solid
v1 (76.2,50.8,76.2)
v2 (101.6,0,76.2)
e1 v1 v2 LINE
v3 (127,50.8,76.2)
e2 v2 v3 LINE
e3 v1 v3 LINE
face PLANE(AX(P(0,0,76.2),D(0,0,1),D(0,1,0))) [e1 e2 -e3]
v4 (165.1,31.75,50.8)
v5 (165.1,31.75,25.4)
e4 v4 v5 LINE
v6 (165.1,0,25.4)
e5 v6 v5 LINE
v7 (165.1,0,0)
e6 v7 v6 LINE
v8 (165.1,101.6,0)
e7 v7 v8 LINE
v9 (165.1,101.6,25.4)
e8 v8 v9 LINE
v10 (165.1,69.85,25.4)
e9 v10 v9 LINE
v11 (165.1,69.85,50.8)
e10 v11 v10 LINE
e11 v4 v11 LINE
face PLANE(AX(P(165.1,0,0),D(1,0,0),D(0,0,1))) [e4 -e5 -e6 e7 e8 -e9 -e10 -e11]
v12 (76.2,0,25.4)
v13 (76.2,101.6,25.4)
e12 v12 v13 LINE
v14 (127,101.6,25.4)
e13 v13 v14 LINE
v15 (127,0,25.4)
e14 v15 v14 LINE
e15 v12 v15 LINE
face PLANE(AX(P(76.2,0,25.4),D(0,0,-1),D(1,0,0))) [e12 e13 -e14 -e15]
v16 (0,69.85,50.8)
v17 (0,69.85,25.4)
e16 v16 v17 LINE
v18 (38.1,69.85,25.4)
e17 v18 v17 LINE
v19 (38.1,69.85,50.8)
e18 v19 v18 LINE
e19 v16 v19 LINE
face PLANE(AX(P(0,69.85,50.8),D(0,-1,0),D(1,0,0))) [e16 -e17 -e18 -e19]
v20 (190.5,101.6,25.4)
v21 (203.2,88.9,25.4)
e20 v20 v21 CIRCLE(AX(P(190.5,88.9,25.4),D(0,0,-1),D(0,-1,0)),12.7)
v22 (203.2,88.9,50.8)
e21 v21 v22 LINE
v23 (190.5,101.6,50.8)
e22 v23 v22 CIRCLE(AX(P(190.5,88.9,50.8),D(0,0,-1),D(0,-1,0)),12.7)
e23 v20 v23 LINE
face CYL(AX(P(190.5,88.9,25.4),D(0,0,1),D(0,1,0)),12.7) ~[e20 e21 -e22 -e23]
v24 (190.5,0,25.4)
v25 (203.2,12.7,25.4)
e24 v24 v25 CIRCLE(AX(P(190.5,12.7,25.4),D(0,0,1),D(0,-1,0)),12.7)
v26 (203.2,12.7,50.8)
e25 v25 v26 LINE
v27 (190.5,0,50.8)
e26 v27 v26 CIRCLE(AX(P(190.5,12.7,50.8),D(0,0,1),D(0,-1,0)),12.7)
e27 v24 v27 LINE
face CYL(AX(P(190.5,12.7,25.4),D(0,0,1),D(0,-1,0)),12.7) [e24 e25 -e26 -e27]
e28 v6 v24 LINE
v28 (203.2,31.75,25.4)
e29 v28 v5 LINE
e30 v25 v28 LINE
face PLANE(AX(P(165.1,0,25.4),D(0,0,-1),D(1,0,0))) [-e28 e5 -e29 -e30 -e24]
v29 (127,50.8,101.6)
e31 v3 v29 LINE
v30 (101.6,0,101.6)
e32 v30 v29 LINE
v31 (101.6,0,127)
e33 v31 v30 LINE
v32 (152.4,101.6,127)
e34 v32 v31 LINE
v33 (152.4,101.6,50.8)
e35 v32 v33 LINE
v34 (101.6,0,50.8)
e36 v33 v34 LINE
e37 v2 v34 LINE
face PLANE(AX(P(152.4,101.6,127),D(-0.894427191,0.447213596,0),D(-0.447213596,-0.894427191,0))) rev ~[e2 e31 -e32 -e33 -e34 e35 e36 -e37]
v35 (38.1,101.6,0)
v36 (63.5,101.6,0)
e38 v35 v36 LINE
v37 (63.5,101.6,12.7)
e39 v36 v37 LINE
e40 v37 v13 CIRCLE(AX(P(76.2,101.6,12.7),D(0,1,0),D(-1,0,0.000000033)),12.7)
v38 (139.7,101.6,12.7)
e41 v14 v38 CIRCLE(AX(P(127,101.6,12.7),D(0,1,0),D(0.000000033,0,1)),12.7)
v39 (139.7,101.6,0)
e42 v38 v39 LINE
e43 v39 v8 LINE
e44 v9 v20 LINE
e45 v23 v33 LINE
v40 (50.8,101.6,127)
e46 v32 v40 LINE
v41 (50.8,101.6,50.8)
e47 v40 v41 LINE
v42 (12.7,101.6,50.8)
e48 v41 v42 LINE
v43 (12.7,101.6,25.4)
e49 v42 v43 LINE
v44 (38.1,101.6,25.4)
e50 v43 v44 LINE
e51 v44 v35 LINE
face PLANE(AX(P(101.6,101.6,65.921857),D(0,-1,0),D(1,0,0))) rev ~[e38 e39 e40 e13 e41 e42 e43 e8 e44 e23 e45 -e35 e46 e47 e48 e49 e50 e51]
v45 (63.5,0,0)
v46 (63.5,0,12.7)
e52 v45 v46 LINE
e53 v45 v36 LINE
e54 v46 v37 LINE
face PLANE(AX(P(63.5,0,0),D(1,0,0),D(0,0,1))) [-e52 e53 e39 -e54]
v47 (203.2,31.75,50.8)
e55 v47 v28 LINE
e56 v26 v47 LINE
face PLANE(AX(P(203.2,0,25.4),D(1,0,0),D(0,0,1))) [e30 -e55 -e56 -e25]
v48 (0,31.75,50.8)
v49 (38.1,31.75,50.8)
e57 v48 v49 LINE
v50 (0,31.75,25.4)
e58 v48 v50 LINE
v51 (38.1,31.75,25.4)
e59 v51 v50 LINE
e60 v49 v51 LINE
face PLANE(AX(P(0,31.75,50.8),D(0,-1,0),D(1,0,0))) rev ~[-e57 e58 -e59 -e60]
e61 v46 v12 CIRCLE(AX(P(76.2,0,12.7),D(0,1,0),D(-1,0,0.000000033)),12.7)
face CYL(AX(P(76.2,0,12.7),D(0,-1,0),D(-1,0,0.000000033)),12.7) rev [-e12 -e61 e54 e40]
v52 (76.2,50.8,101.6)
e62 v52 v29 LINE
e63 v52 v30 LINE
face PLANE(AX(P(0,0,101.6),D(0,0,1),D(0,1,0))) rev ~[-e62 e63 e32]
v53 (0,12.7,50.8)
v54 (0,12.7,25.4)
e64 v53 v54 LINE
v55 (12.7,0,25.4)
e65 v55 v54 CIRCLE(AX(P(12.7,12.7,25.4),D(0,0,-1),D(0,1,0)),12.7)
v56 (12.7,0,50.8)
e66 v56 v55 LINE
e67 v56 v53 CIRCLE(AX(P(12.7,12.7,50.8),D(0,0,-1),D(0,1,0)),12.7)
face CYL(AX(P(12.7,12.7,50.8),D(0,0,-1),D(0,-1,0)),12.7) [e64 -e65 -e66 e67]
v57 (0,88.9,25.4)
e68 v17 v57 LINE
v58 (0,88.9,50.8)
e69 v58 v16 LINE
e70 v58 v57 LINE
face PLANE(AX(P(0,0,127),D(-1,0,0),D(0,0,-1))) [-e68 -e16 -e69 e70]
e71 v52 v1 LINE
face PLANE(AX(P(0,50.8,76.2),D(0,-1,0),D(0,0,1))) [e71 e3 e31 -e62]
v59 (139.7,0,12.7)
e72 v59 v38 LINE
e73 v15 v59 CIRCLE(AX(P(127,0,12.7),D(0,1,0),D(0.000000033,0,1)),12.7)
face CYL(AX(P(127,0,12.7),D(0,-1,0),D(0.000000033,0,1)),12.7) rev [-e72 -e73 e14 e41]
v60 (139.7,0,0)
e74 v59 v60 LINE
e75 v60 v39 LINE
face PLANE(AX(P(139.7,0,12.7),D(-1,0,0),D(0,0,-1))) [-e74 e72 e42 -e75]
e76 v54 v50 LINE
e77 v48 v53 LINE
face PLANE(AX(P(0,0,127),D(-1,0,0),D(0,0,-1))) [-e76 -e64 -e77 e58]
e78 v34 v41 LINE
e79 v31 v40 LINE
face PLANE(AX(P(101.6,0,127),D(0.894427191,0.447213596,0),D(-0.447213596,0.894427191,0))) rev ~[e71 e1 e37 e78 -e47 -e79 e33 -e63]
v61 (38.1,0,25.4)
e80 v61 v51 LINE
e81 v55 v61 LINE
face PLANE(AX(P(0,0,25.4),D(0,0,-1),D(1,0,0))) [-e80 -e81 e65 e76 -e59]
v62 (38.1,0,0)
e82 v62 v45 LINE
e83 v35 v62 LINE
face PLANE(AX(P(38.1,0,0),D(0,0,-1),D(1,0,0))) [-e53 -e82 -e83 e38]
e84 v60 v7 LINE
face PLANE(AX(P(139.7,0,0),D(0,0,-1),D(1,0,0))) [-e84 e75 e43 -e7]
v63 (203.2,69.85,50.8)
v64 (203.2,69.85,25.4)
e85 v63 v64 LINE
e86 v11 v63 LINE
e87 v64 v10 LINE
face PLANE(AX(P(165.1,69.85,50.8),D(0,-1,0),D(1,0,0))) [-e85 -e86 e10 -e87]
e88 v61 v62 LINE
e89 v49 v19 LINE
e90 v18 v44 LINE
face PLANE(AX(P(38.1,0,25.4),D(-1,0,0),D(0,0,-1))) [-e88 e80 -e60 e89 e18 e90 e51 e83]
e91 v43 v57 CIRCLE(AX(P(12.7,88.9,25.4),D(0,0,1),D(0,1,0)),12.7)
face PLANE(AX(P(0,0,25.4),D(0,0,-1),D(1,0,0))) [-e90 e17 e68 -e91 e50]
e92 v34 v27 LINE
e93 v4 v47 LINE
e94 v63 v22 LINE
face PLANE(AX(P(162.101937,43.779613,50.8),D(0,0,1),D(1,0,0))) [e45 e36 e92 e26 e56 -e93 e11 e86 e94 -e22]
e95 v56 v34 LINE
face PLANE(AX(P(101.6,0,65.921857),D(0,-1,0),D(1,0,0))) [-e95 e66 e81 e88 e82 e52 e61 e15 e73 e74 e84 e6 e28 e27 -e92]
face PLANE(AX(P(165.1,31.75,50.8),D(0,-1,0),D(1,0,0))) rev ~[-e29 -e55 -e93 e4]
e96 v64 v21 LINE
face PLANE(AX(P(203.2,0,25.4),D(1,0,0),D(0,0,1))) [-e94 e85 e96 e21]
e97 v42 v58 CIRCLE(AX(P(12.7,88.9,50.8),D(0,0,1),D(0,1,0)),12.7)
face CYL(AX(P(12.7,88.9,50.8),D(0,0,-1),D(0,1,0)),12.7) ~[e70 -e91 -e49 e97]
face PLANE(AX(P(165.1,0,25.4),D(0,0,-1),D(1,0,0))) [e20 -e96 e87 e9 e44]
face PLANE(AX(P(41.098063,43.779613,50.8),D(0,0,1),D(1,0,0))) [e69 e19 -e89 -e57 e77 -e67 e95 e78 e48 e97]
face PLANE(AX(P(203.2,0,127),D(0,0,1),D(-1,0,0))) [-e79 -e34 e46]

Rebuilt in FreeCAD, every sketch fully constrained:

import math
import FreeCAD as App
import Part
import Sketcher
from FreeCAD import Vector
Q = App.Units.Quantity


def edges_at(feature, points):
    """Names of the edges that pass closest to the given points."""
    edges = feature.Shape.Edges
    near = lambda p: min(range(len(edges)), key=lambda i: edges[i].distToShape(Part.Vertex(*p))[0])
    return sorted({f"Edge{near(p) + 1}" for p in points})

doc = App.newDocument("Part")
body = doc.addObject("PartDesign::Body", "Body")

# Sketch on XZ plane
sketch1 = body.newObject("Sketcher::SketchObject", "Sketch")
sketch1.AttachmentSupport = (doc.getObject("XZ_Plane"), [""])
sketch1.MapMode = "FlatFace"
sketch1.addGeometry([
    Part.LineSegment(Vector(38, 25, 0), Vector(38, 0, 0)),  # 0
    Part.LineSegment(Vector(38, 0, 0), Vector(64, 0, 0)),  # 1
    Part.LineSegment(Vector(64, 0, 0), Vector(64, 13, 0)),  # 2
    Part.ArcOfCircle(Part.Circle(Vector(76, 13, 0), Vector(0, 0, 1), 13), math.radians(90), math.radians(180)),  # 3
    Part.LineSegment(Vector(76, 25, 0), Vector(127, 25, 0)),  # 4
    Part.ArcOfCircle(Part.Circle(Vector(127, 13, 0), Vector(0, 0, 1), 13), math.radians(0), math.radians(90)),  # 5
    Part.LineSegment(Vector(140, 13, 0), Vector(140, 0, 0)),  # 6
    Part.LineSegment(Vector(140, 0, 0), Vector(165, 0, 0)),  # 7
    Part.LineSegment(Vector(165, 0, 0), Vector(165, 25, 0)),  # 8
    Part.LineSegment(Vector(165, 25, 0), Vector(203, 25, 0)),  # 9
    Part.LineSegment(Vector(203, 25, 0), Vector(203, 127, 0)),  # 10
    Part.LineSegment(Vector(203, 127, 0), Vector(0, 127, 0)),  # 11
    Part.LineSegment(Vector(0, 127, 0), Vector(0, 25, 0)),  # 12
    Part.LineSegment(Vector(0, 25, 0), Vector(38, 25, 0)),  # 13
], False)
sketch1.addConstraint([
    Sketcher.Constraint("Coincident", 0, 2, 1, 1),
    Sketcher.Constraint("Coincident", 1, 2, 2, 1),
    Sketcher.Constraint("Tangent", 2, 2, 3, 2),
    Sketcher.Constraint("Tangent", 3, 1, 4, 1),
    Sketcher.Constraint("Tangent", 4, 2, 5, 2),
    Sketcher.Constraint("Tangent", 5, 1, 6, 1),
    Sketcher.Constraint("Coincident", 6, 2, 7, 1),
    Sketcher.Constraint("Coincident", 7, 2, 8, 1),
    Sketcher.Constraint("Coincident", 8, 2, 9, 1),
    Sketcher.Constraint("Coincident", 9, 2, 10, 1),
    Sketcher.Constraint("Coincident", 10, 2, 11, 1),
    Sketcher.Constraint("Coincident", 11, 2, 12, 1),
    Sketcher.Constraint("Coincident", 12, 2, 13, 1),
    Sketcher.Constraint("Coincident", 13, 2, 0, 1),
    Sketcher.Constraint("Vertical", 0),
    Sketcher.Constraint("Horizontal", 1),
    Sketcher.Constraint("Vertical", 2),
    Sketcher.Constraint("Horizontal", 4),
    Sketcher.Constraint("Vertical", 6),
    Sketcher.Constraint("Horizontal", 7),
    Sketcher.Constraint("Vertical", 8),
    Sketcher.Constraint("Horizontal", 9),
    Sketcher.Constraint("Vertical", 10),
    Sketcher.Constraint("Horizontal", 11),
    Sketcher.Constraint("Vertical", 12),
    Sketcher.Constraint("Horizontal", 13),
    Sketcher.Constraint("Equal", 3, 5),
    Sketcher.Constraint("PointOnObject", 0, 2, -1),
    Sketcher.Constraint("PointOnObject", 6, 2, -1),
    Sketcher.Constraint("PointOnObject", 11, 2, -2),
    Sketcher.Constraint("Horizontal", 4, 2, 8, 2),
    Sketcher.Constraint("Horizontal", 9, 2, 12, 2),
    Sketcher.Constraint("Equal", 1, 7),
    Sketcher.Constraint("Equal", 9, 13),
    Sketcher.Constraint("Equal", 7, 0),
    Sketcher.Constraint("Radius", 3, Q("0.5 in")),
    Sketcher.Constraint("DistanceX", 1, 1, 1, 2, Q("1 in")),
    Sketcher.Constraint("DistanceX", 4, 1, 4, 2, Q("2 in")),
    Sketcher.Constraint("DistanceX", 11, 2, 11, 1, Q("8 in")),
    Sketcher.Constraint("DistanceY", 10, 1, 10, 2, Q("4 in")),
])
pad1 = body.newObject("PartDesign::Pad", "Pad")
pad1.Profile = sketch1
pad1.Length = Q("4 in")
pad1.Reversed = True

# Sketch on XY plane
sketch2 = body.newObject("Sketcher::SketchObject", "Sketch001")
sketch2.AttachmentSupport = (doc.getObject("XY_Plane"), [""])
sketch2.MapMode = "FlatFace"
sketch2.AttachmentOffset = App.Placement(Vector(0, 0, 5 * 25.4), App.Rotation())
sketch2.addGeometry([
    Part.LineSegment(Vector(152, 102, 0), Vector(102, 0, 0)),  # 0
    Part.LineSegment(Vector(102, 0, 0), Vector(203, 0, 0)),  # 1
    Part.LineSegment(Vector(203, 0, 0), Vector(203, 102, 0)),  # 2
    Part.LineSegment(Vector(203, 102, 0), Vector(152, 102, 0)),  # 3
    Part.LineSegment(Vector(0, 0, 0), Vector(102, 0, 0)),  # 4
    Part.LineSegment(Vector(102, 0, 0), Vector(51, 102, 0)),  # 5
    Part.LineSegment(Vector(51, 102, 0), Vector(0, 102, 0)),  # 6
    Part.LineSegment(Vector(0, 102, 0), Vector(0, 0, 0)),  # 7
], False)
sketch2.addConstraint([
    Sketcher.Constraint("Coincident", 0, 2, 1, 1),
    Sketcher.Constraint("Coincident", 1, 2, 2, 1),
    Sketcher.Constraint("Coincident", 2, 2, 3, 1),
    Sketcher.Constraint("Coincident", 3, 2, 0, 1),
    Sketcher.Constraint("Coincident", 4, 2, 5, 1),
    Sketcher.Constraint("Coincident", 5, 2, 6, 1),
    Sketcher.Constraint("Coincident", 6, 2, 7, 1),
    Sketcher.Constraint("Coincident", 7, 2, 4, 1),
    Sketcher.Constraint("Horizontal", 1),
    Sketcher.Constraint("Vertical", 2),
    Sketcher.Constraint("Horizontal", 3),
    Sketcher.Constraint("Horizontal", 4),
    Sketcher.Constraint("Horizontal", 6),
    Sketcher.Constraint("Vertical", 7),
    Sketcher.Constraint("Coincident", 7, 2, -1, 1),
    Sketcher.Constraint("Coincident", 4, 2, 0, 2),
    Sketcher.Constraint("Horizontal", 3, 2, 5, 2),
    Sketcher.Constraint("Equal", 1, 4),
    Sketcher.Constraint("Equal", 3, 6),
    Sketcher.Constraint("Equal", 4, 2),
    Sketcher.Constraint("DistanceX", 1, 1, 1, 2, Q("4 in")),
    Sketcher.Constraint("DistanceX", 3, 2, 3, 1, Q("2 in")),
])
pocket1 = body.newObject("PartDesign::Pocket", "Pocket")
pocket1.Profile = sketch2
pocket1.Length = Q("3 in")
doc.recompute()

fillet = body.newObject("PartDesign::Fillet", "Fillet")
fillet.Base = (pocket1, edges_at(pocket1, [
    (203.2, 0, 38.1),
    (203.2, 101.6, 38.1),
    (0, 101.6, 38.1),
    (0, 0, 38.1),
]))
fillet.Radius = Q("0.5 in")

# Sketch on XY plane
sketch3 = body.newObject("Sketcher::SketchObject", "Sketch002")
sketch3.AttachmentSupport = (doc.getObject("XY_Plane"), [""])
sketch3.MapMode = "FlatFace"
sketch3.AttachmentOffset = App.Placement(Vector(0, 0, 2 * 25.4), App.Rotation())
sketch3.addGeometry([
    Part.LineSegment(Vector(0, 70, 0), Vector(0, 32, 0)),
    Part.LineSegment(Vector(0, 32, 0), Vector(38, 32, 0)),
    Part.LineSegment(Vector(38, 32, 0), Vector(38, 70, 0)),
    Part.LineSegment(Vector(38, 70, 0), Vector(0, 70, 0)),
], False)
sketch3.addConstraint([
    Sketcher.Constraint("Coincident", 0, 2, 1, 1),
    Sketcher.Constraint("Coincident", 1, 2, 2, 1),
    Sketcher.Constraint("Coincident", 2, 2, 3, 1),
    Sketcher.Constraint("Coincident", 3, 2, 0, 1),
    Sketcher.Constraint("Vertical", 0),
    Sketcher.Constraint("Horizontal", 1),
    Sketcher.Constraint("Vertical", 2),
    Sketcher.Constraint("Horizontal", 3),
    Sketcher.Constraint("PointOnObject", 0, 2, -2),
    Sketcher.Constraint("Equal", 3, 0),
    Sketcher.Constraint("DistanceX", 1, 1, 1, 2, Q("1.5 in")),
    Sketcher.Constraint("DistanceY", -1, 1, 0, 2, Q("1.25 in")),
])
pocket2 = body.newObject("PartDesign::Pocket", "Pocket001")
pocket2.Profile = sketch3
pocket2.Type = "ThroughAll"

# Sketch on XY plane
sketch4 = body.newObject("Sketcher::SketchObject", "Sketch003")
sketch4.AttachmentSupport = (doc.getObject("XY_Plane"), [""])
sketch4.MapMode = "FlatFace"
sketch4.AttachmentOffset = App.Placement(Vector(0, 0, 2 * 25.4), App.Rotation())
sketch4.addGeometry([
    Part.LineSegment(Vector(165, 70, 0), Vector(165, 32, 0)),
    Part.LineSegment(Vector(165, 32, 0), Vector(203, 32, 0)),
    Part.LineSegment(Vector(203, 32, 0), Vector(203, 70, 0)),
    Part.LineSegment(Vector(203, 70, 0), Vector(165, 70, 0)),
], False)
sketch4.addConstraint([
    Sketcher.Constraint("Coincident", 0, 2, 1, 1),
    Sketcher.Constraint("Coincident", 1, 2, 2, 1),
    Sketcher.Constraint("Coincident", 2, 2, 3, 1),
    Sketcher.Constraint("Coincident", 3, 2, 0, 1),
    Sketcher.Constraint("Vertical", 0),
    Sketcher.Constraint("Horizontal", 1),
    Sketcher.Constraint("Vertical", 2),
    Sketcher.Constraint("Horizontal", 3),
    Sketcher.Constraint("Equal", 3, 0),
    Sketcher.Constraint("DistanceX", 1, 1, 1, 2, Q("1.5 in")),
    Sketcher.Constraint("DistanceX", -1, 1, 1, 2, Q("8 in")),
    Sketcher.Constraint("DistanceY", -1, 1, 0, 2, Q("1.25 in")),
])
pocket3 = body.newObject("PartDesign::Pocket", "Pocket002")
pocket3.Profile = sketch4
pocket3.Type = "ThroughAll"

# Sketch on YZ plane
sketch5 = body.newObject("Sketcher::SketchObject", "Sketch004")
sketch5.AttachmentSupport = (doc.getObject("YZ_Plane"), [""])
sketch5.MapMode = "FlatFace"
sketch5.addGeometry([
    Part.LineSegment(Vector(0, 102, 0), Vector(0, 76, 0)),
    Part.LineSegment(Vector(0, 76, 0), Vector(51, 76, 0)),
    Part.LineSegment(Vector(51, 76, 0), Vector(51, 102, 0)),
    Part.LineSegment(Vector(51, 102, 0), Vector(0, 102, 0)),
], False)
sketch5.addConstraint([
    Sketcher.Constraint("Coincident", 0, 2, 1, 1),
    Sketcher.Constraint("Coincident", 1, 2, 2, 1),
    Sketcher.Constraint("Coincident", 2, 2, 3, 1),
    Sketcher.Constraint("Coincident", 3, 2, 0, 1),
    Sketcher.Constraint("Vertical", 0),
    Sketcher.Constraint("Horizontal", 1),
    Sketcher.Constraint("Vertical", 2),
    Sketcher.Constraint("Horizontal", 3),
    Sketcher.Constraint("PointOnObject", 0, 2, -2),
    Sketcher.Constraint("DistanceX", 1, 1, 1, 2, Q("2 in")),
    Sketcher.Constraint("DistanceY", 0, 2, 0, 1, Q("1 in")),
    Sketcher.Constraint("DistanceY", -1, 1, 0, 2, Q("3 in")),
])
pocket4 = body.newObject("PartDesign::Pocket", "Pocket003")
pocket4.Profile = sketch5
pocket4.Type = "ThroughAll"
pocket4.Reversed = True

doc.recompute()
